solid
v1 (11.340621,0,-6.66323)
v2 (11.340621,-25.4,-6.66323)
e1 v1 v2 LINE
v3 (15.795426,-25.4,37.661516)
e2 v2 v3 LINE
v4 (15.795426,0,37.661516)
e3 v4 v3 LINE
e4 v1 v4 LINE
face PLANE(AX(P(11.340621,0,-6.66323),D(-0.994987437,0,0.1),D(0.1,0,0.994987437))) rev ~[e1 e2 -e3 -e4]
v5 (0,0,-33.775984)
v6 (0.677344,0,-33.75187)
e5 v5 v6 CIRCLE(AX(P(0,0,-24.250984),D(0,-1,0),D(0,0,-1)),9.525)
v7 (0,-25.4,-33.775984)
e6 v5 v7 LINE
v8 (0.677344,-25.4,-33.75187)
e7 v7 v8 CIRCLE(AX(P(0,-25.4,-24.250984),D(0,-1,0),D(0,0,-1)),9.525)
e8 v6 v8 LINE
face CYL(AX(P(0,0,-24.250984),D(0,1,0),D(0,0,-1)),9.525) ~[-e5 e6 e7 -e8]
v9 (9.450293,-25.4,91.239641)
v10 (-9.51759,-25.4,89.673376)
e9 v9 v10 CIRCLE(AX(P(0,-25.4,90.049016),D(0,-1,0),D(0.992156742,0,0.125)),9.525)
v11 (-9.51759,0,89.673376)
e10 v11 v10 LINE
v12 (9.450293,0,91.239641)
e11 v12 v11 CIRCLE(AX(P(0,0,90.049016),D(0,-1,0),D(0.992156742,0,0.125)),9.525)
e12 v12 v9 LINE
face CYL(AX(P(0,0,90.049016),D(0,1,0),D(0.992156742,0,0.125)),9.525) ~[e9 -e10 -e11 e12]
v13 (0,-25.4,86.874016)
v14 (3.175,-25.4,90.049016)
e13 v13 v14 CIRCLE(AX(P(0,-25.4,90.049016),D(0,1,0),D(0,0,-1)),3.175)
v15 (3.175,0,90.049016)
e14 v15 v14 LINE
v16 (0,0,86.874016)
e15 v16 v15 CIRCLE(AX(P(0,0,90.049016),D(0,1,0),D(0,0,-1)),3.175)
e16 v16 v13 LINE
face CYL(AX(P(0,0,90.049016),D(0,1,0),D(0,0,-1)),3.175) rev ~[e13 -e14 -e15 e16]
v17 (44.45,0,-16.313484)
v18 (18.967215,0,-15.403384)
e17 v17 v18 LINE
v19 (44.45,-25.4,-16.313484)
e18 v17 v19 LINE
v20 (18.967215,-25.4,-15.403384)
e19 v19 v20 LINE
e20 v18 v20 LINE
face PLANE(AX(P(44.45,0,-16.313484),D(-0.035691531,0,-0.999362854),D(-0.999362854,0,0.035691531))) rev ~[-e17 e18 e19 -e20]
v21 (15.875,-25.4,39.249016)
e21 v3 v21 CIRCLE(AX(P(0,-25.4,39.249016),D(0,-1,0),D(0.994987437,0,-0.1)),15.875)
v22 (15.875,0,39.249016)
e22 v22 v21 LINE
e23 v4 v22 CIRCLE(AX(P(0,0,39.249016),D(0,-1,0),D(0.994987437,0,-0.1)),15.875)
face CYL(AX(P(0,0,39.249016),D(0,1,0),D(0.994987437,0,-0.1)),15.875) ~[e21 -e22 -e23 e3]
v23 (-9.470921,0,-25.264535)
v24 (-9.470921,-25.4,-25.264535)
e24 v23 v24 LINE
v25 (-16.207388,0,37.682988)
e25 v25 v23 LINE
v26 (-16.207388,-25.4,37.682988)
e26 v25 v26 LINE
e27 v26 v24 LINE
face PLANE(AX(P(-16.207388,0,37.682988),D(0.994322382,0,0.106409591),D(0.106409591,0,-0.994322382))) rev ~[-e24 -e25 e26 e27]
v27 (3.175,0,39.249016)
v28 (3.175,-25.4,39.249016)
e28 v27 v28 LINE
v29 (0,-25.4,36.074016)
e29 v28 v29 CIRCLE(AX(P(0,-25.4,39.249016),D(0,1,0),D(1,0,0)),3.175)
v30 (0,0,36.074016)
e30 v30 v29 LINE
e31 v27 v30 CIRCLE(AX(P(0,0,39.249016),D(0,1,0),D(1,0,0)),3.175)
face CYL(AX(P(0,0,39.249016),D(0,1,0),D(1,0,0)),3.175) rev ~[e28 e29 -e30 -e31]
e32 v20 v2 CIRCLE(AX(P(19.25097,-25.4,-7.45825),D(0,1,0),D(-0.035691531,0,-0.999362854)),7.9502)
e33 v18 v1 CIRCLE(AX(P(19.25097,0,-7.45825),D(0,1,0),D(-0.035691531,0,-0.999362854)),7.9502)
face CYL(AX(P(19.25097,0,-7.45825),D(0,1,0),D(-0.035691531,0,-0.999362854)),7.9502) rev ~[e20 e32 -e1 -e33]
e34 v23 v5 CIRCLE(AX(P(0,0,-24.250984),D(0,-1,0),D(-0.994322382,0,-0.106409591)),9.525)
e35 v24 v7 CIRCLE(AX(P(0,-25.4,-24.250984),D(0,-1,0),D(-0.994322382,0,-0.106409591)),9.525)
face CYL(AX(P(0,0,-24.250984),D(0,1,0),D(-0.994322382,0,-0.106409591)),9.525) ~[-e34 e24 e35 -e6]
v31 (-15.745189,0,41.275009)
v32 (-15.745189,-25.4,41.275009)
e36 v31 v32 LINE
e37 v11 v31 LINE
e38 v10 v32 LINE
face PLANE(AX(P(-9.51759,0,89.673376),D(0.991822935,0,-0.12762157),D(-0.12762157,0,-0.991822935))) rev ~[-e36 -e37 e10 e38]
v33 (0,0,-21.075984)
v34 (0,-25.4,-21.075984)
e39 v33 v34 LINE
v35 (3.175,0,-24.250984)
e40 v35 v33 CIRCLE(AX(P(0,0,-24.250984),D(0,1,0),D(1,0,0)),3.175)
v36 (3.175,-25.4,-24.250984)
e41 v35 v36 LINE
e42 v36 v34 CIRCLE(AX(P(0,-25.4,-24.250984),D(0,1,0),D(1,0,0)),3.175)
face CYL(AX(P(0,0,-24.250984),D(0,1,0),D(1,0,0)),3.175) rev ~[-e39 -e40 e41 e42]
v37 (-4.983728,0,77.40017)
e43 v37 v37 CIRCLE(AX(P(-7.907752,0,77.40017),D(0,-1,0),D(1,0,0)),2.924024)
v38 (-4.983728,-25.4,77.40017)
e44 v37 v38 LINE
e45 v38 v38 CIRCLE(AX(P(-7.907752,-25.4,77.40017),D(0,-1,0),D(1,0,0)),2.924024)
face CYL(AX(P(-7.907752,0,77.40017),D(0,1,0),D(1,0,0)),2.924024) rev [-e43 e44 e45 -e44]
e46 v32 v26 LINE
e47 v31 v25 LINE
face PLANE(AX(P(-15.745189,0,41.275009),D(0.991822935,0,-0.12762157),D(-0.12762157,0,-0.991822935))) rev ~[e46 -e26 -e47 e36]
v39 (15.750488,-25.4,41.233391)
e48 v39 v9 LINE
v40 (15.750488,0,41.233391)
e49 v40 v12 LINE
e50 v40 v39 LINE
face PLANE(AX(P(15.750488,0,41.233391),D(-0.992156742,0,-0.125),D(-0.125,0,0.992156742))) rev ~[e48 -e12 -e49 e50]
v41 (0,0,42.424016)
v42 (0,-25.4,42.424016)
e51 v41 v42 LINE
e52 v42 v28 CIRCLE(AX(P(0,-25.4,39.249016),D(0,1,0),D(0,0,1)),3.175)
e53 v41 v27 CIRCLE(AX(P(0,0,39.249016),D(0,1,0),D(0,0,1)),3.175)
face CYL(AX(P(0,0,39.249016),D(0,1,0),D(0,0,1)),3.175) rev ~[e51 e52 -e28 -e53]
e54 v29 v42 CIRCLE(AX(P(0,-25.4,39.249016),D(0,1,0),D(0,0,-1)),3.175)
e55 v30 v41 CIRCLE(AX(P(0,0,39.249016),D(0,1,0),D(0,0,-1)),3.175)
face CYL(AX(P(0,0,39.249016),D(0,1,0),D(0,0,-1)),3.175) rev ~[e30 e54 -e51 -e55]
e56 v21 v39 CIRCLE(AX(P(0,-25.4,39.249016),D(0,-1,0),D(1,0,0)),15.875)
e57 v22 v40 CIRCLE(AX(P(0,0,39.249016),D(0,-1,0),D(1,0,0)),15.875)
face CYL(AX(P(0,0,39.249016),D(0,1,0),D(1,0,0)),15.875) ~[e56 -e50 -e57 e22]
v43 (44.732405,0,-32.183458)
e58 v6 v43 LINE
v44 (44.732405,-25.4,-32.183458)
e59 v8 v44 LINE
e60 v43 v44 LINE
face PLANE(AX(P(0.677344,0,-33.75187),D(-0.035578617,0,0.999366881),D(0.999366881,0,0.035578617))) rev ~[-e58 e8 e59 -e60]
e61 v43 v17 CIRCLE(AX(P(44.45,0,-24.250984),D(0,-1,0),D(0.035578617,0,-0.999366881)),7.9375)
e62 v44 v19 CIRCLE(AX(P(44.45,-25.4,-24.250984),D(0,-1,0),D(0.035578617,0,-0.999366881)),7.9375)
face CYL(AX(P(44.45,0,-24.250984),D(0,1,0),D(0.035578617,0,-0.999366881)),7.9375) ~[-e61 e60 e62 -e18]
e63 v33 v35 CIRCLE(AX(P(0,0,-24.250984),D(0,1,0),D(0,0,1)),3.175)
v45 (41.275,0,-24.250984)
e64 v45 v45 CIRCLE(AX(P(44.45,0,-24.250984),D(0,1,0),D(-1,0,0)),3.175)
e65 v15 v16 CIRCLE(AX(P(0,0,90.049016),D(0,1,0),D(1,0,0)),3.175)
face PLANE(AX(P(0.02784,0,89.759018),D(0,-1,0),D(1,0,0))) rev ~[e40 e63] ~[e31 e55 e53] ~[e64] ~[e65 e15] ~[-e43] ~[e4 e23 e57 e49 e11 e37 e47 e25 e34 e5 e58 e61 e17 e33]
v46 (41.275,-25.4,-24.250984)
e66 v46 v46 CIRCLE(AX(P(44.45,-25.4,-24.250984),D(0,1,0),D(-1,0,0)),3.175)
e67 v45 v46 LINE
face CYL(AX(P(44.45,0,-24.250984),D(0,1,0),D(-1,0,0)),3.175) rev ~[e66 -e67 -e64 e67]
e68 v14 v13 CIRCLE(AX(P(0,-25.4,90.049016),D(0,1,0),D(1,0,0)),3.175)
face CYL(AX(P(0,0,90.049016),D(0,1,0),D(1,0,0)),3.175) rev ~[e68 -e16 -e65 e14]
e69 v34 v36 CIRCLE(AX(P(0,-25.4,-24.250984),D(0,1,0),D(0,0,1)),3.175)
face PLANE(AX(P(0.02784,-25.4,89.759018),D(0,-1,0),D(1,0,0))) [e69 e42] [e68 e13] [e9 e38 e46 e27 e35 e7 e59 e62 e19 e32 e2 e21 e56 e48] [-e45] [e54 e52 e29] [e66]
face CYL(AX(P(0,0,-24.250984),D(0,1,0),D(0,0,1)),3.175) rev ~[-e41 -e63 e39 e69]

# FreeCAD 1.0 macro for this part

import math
import FreeCAD as App
import Part
import Sketcher

V = App.Vector
Q = App.Units.Quantity

doc = App.newDocument("Part")
body = doc.addObject("PartDesign::Body", "Body")

# Sketch on XZ plane
sketch1 = body.newObject("Sketcher::SketchObject", "Sketch")
sketch1.AttachmentSupport = (doc.getObject("XZ_Plane"), [""])
sketch1.MapMode = "FlatFace"
sketch1.addGeometry([
    Part.LineSegment(V(0.7, -33.8, 0), V(44.7, -32.2, 0)),  # 0
    Part.ArcOfCircle(Part.Circle(V(44.5, -24.3, 0), V(0, 0, 1), 7.9), math.radians(-88), math.radians(90)),  # 1
    Part.LineSegment(V(44.5, -16.3, 0), V(19, -15.4, 0)),  # 2
    Part.ArcOfCircle(Part.Circle(V(19.3, -7.5, 0), V(0, 0, 1), 8), math.radians(174), math.radians(268)),  # 3
    Part.LineSegment(V(11.3, -6.7, 0), V(15.8, 37.7, 0)),  # 4
    Part.ArcOfCircle(Part.Circle(V(0, 39.2, 0), V(0, 0, 1), 15.9), math.radians(-5.74), math.radians(0)),  # 5
    Part.ArcOfCircle(Part.Circle(V(0, 39.2, 0), V(0, 0, 1), 15.9), math.radians(0), math.radians(7.18)),  # 6
    Part.LineSegment(V(15.8, 41.2, 0), V(9.5, 91.2, 0)),  # 7
    Part.ArcOfCircle(Part.Circle(V(0, 90, 0), V(0, 0, 1), 9.5), math.radians(7), math.radians(182)),  # 8
    Part.LineSegment(V(-9.5, 89.7, 0), V(-15.7, 41.3, 0)),  # 9
    Part.LineSegment(V(-15.7, 41.3, 0), V(-16.2, 37.7, 0)),  # 10
    Part.LineSegment(V(-16.2, 37.7, 0), V(-9.5, -25.3, 0)),  # 11
    Part.ArcOfCircle(Part.Circle(V(0, -24.3, 0), V(0, 0, 1), 9.5), math.radians(-174), math.radians(-90)),  # 12
    Part.ArcOfCircle(Part.Circle(V(0, -24.3, 0), V(0, 0, 1), 9.5), math.radians(-90), math.radians(-85.92)),  # 13
    Part.ArcOfCircle(Part.Circle(V(0, -24.3, 0), V(0, 0, 1), 3.2), math.radians(90), math.radians(360)),  # 14
    Part.ArcOfCircle(Part.Circle(V(0, -24.3, 0), V(0, 0, 1), 3.2), math.radians(0), math.radians(90)),  # 15
    Part.Circle(V(44.5, -24.3, 0), V(0, 0, 1), 3.2),  # 16
    Part.ArcOfCircle(Part.Circle(V(0, 39.2, 0), V(0, 0, 1), 3.2), math.radians(0), math.radians(90)),  # 17
    Part.ArcOfCircle(Part.Circle(V(0, 39.2, 0), V(0, 0, 1), 3.2), math.radians(-90), math.radians(0)),  # 18
    Part.ArcOfCircle(Part.Circle(V(0, 39.2, 0), V(0, 0, 1), 3.2), math.radians(90), math.radians(270)),  # 19
    Part.Circle(V(-7.9, 77.4, 0), V(0, 0, 1), 2.9),  # 20
    Part.ArcOfCircle(Part.Circle(V(0, 90, 0), V(0, 0, 1), 3.2), math.radians(0), math.radians(270)),  # 21
    Part.ArcOfCircle(Part.Circle(V(0, 90, 0), V(0, 0, 1), 3.2), math.radians(-90), math.radians(0)),  # 22
], False)
sketch1.addConstraint([
    Sketcher.Constraint("Tangent", 0, 2, 1, 1),
    Sketcher.Constraint("Coincident", 1, 2, 2, 1),
    Sketcher.Constraint("Tangent", 2, 2, 3, 2),
    Sketcher.Constraint("Tangent", 3, 1, 4, 1),
    Sketcher.Constraint("Tangent", 4, 2, 5, 1),
    Sketcher.Constraint("Tangent", 5, 2, 6, 1),
    Sketcher.Constraint("Tangent", 6, 2, 7, 1),
    Sketcher.Constraint("Tangent", 7, 2, 8, 1),
    Sketcher.Constraint("Coincident", 8, 2, 9, 1),
    Sketcher.Constraint("Coincident", 9, 2, 10, 1),
    Sketcher.Constraint("Coincident", 10, 2, 11, 1),
    Sketcher.Constraint("Tangent", 11, 2, 12, 1),
    Sketcher.Constraint("Tangent", 12, 2, 13, 1),
    Sketcher.Constraint("Coincident", 13, 2, 0, 1),
    Sketcher.Constraint("Tangent", 14, 1, 15, 2),
    Sketcher.Constraint("Coincident", 15, 1, 14, 2),
    Sketcher.Constraint("Tangent", 17, 1, 18, 2),
    Sketcher.Constraint("Tangent", 18, 1, 19, 2),
    Sketcher.Constraint("Tangent", 19, 1, 17, 2),
    Sketcher.Constraint("Tangent", 21, 1, 22, 2),
    Sketcher.Constraint("Coincident", 22, 1, 21, 2),
    Sketcher.Constraint("Coincident", 14, 3, 12, 3),
    Sketcher.Constraint("Coincident", 16, 3, 1, 3),
    Sketcher.Constraint("Coincident", 17, 3, 5, 3),
    Sketcher.Constraint("Coincident", 21, 3, 8, 3),
    Sketcher.Constraint("Equal", 5, 6),
    Sketcher.Constraint("Equal", 8, 12),
    Sketcher.Constraint("Equal", 12, 13),
    Sketcher.Constraint("Equal", 15, 16),
    Sketcher.Constraint("Equal", 16, 17),
    Sketcher.Constraint("Equal", 19, 21),
    Sketcher.Constraint("PointOnObject", 5, 3, -2),
    Sketcher.Constraint("PointOnObject", 8, 3, -2),
    Sketcher.Constraint("PointOnObject", 12, 3, -2),
    Sketcher.Constraint("PointOnObject", 12, 2, -2),
    Sketcher.Constraint("PointOnObject", 14, 1, -2),
    Sketcher.Constraint("PointOnObject", 18, 1, -2),
    Sketcher.Constraint("PointOnObject", 19, 1, -2),
    Sketcher.Constraint("PointOnObject", 22, 1, -2),
    Sketcher.Constraint("Parallel", 9, 10),
    Sketcher.Constraint("Horizontal", 1, 3, 12, 3),
    Sketcher.Constraint("Horizontal", 19, 3, 5, 2),
    Sketcher.Constraint("Horizontal", 16, 3, 15, 1),
    Sketcher.Constraint("Horizontal", 5, 2, 17, 1),
    Sketcher.Constraint("Horizontal", 22, 3, 21, 1),
    Sketcher.Constraint("Vertical", 16, 3, 1, 2),
    Sketcher.Constraint("Diameter", 16, Q("0.25 in")),
    Sketcher.Constraint("Radius", 1, Q("0.3125 in")),
    Sketcher.Constraint("Radius", 3, Q("0.313 in")),
    Sketcher.Constraint("Radius", 5, Q("0.625 in")),
    Sketcher.Constraint("Radius", 8, Q("0.375 in")),
    Sketcher.Constraint("DistanceY", 5, 3, 8, 3, Q("2 in")),
    Sketcher.Constraint("DistanceY", 1, 3, 5, 3, Q("2.5 in")),
    Sketcher.Constraint("DistanceX", -1, 1, 1, 3, Q("1.75 in")),
    Sketcher.Constraint("Diameter", 20, 5.848048),
    Sketcher.Constraint("DistanceY", 4, 2, 6, 3, Q("0.0625 in")),
    Sketcher.Constraint("Distance", 11, Q("2.4923998 in")),
    Sketcher.Constraint("DistanceY", 13, 3, 2, 2, 8.847599),
    Sketcher.Constraint("DistanceX", 10, 2, 9, 2, 0.462199),
    Sketcher.Constraint("Distance", 0, 44.082972),
    Sketcher.Constraint("DistanceY", 3, 3, -1, 1, 7.45825),
    Sketcher.Constraint("DistanceX", 20, 3, -1, 1, 7.907752),
    Sketcher.Constraint("DistanceY", -1, 1, 20, 3, 77.40017),
    Sketcher.Constraint("DistanceX", 8, 2, -1, 1, 9.51759),
    Sketcher.Constraint("DistanceX", 9, 2, -1, 1, 15.745189),
])
pad1 = body.newObject("PartDesign::Pad", "Pad")
pad1.Profile = sketch1
pad1.Length = Q("1 in")

doc.recompute()
